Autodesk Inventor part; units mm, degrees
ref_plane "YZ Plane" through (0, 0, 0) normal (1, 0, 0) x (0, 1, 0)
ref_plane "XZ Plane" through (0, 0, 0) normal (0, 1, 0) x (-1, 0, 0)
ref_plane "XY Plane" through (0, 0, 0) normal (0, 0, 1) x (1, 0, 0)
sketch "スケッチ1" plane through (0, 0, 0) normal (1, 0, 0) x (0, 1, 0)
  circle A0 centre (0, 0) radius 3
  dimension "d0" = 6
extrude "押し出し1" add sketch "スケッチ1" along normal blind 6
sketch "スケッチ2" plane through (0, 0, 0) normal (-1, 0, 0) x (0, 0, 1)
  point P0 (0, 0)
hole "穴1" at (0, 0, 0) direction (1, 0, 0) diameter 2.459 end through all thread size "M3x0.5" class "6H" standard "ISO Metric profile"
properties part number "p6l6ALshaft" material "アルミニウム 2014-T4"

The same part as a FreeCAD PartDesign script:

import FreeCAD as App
import Part
import Sketcher

doc = App.newDocument("Part")
body = doc.addObject("PartDesign::Body", "Body")

sketch1 = body.newObject("Sketcher::SketchObject", "Sketch")
sketch1.AttachmentSupport = (doc.getObject("YZ_Plane"), [""])
sketch1.MapMode = "FlatFace"
sketch1.addGeometry(Part.Circle(App.Vector(0, 0, 0), App.Vector(0, 0, 1), 3), False)
sketch1.addConstraint(Sketcher.Constraint("Coincident", 0, 3, -1, 1))
sketch1.addConstraint(Sketcher.Constraint("Diameter", 0, 6.0))
pad1 = body.newObject("PartDesign::Pad", "Pad")
pad1.Profile = sketch1
pad1.Length = 6

sketch2 = body.newObject("Sketcher::SketchObject", "Sketch001")
sketch2.AttachmentSupport = (doc.getObject("YZ_Plane"), [""])
sketch2.MapMode = "FlatFace"
sketch2.addGeometry(Part.Circle(App.Vector(0, 0, 0), App.Vector(0, 0, 1), 1.2), False)
sketch2.addConstraint(Sketcher.Constraint("Coincident", 0, 3, -1, 1))
sketch2.addConstraint(Sketcher.Constraint("Diameter", 0, 2.459))
doc.recompute()
hole = body.newObject("PartDesign::Hole", "Hole")
hole.Profile = sketch2
hole.ThreadType = "None"
hole.Diameter = 2.459
hole.DepthType = "ThroughAll"
hole.Reversed = True

doc.recompute()
